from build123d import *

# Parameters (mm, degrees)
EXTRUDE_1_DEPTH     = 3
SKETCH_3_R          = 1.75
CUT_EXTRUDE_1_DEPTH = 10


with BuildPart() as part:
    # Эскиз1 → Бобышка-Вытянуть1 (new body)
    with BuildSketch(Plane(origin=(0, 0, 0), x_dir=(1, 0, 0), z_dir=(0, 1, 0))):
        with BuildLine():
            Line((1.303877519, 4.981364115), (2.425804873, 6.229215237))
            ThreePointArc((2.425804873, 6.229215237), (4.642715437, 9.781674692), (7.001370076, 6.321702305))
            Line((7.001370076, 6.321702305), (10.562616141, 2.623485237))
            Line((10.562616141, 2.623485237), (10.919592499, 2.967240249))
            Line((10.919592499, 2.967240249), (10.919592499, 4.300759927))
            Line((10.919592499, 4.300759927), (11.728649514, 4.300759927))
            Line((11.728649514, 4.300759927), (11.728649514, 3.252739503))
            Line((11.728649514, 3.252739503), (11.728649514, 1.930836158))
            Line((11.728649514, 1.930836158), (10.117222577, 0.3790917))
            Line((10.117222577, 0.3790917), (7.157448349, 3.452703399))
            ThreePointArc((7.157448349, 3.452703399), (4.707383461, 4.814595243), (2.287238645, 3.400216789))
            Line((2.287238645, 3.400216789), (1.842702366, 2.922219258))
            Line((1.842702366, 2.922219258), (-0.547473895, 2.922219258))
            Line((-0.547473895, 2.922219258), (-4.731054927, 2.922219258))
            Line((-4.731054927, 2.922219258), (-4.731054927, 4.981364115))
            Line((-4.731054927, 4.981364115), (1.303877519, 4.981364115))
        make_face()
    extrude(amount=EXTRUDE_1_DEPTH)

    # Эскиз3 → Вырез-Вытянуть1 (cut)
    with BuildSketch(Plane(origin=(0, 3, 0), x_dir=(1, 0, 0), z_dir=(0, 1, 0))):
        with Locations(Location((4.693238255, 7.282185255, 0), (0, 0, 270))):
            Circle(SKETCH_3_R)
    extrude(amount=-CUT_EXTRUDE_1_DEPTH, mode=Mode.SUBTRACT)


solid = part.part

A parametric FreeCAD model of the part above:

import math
import FreeCAD as App
import Part
import Sketcher
from FreeCAD import Vector
Q = App.Units.Quantity

doc = App.newDocument("Part")
body = doc.addObject("PartDesign::Body", "Body")

sketch1 = body.newObject("Sketcher::SketchObject", "Sketch")
sketch1.AttachmentSupport = (doc.getObject("XZ_Plane"), [""])
sketch1.MapMode = "FlatFace"
sketch1.addGeometry([
    Part.LineSegment(Vector(2.43, -6.23, 0), Vector(1.3, -4.98, 0)),
    Part.LineSegment(Vector(1.3, -4.98, 0), Vector(-4.73, -4.98, 0)),
    Part.LineSegment(Vector(-4.73, -4.98, 0), Vector(-4.73, -2.92, 0)),
    Part.LineSegment(Vector(-4.73, -2.92, 0), Vector(1.84, -2.92, 0)),
    Part.LineSegment(Vector(1.84, -2.92, 0), Vector(2.29, -3.4, 0)),
    Part.ArcOfCircle(Part.Circle(Vector(4.74, -1.98, 0), Vector(0, 0, 1), 2.83), math.radians(-150), math.radians(-31)),
    Part.LineSegment(Vector(7.16, -3.45, 0), Vector(10.12, -0.38, 0)),
    Part.LineSegment(Vector(10.12, -0.38, 0), Vector(11.73, -1.93, 0)),
    Part.LineSegment(Vector(11.73, -1.93, 0), Vector(11.73, -4.3, 0)),
    Part.LineSegment(Vector(11.73, -4.3, 0), Vector(10.92, -4.3, 0)),
    Part.LineSegment(Vector(10.92, -4.3, 0), Vector(10.92, -2.97, 0)),
    Part.LineSegment(Vector(10.92, -2.97, 0), Vector(10.56, -2.62, 0)),
    Part.LineSegment(Vector(10.56, -2.62, 0), Vector(7, -6.32, 0)),
    Part.ArcOfCircle(Part.Circle(Vector(4.69, -7.28, 0), Vector(0, 0, 1), 2.5), math.radians(155), math.radians(383)),
], False)
sketch1.addConstraint([
    Sketcher.Constraint("Coincident", 0, 2, 1, 1),
    Sketcher.Constraint("Coincident", 1, 2, 2, 1),
    Sketcher.Constraint("Coincident", 2, 2, 3, 1),
    Sketcher.Constraint("Coincident", 3, 2, 4, 1),
    Sketcher.Constraint("Coincident", 4, 2, 5, 1),
    Sketcher.Constraint("Coincident", 5, 2, 6, 1),
    Sketcher.Constraint("Coincident", 6, 2, 7, 1),
    Sketcher.Constraint("Coincident", 7, 2, 8, 1),
    Sketcher.Constraint("Coincident", 8, 2, 9, 1),
    Sketcher.Constraint("Coincident", 9, 2, 10, 1),
    Sketcher.Constraint("Coincident", 10, 2, 11, 1),
    Sketcher.Constraint("Coincident", 11, 2, 12, 1),
    Sketcher.Constraint("Coincident", 12, 2, 13, 2),
    Sketcher.Constraint("Coincident", 13, 1, 0, 1),
    Sketcher.Constraint("Horizontal", 1),
    Sketcher.Constraint("Vertical", 2),
    Sketcher.Constraint("Horizontal", 3),
    Sketcher.Constraint("Vertical", 8),
    Sketcher.Constraint("Horizontal", 9),
    Sketcher.Constraint("Vertical", 10),
    Sketcher.Constraint("Perpendicular", 6, 7),
    Sketcher.Constraint("Parallel", 7, 11),
    Sketcher.Constraint("Perpendicular", 11, 12),
    Sketcher.Constraint("Radius", 13, Q("2.5 mm")),
    Sketcher.Constraint("Radius", 5, Q("2.830096 mm")),
    Sketcher.Constraint("DistanceX", 4, 2, 13, 3, Q("2.406 mm")),
    Sketcher.Constraint("DistanceY", 12, 2, 5, 2, Q("2.868999 mm")),
    Sketcher.Constraint("DistanceY", 13, 1, 4, 2, Q("2.828998 mm")),
    Sketcher.Constraint("Distance", 7, Q("2.237098 mm")),
    Sketcher.Constraint("DistanceY", 10, 1, 10, 2, Q("1.33352 mm")),
    Sketcher.Constraint("DistanceY", 0, 2, 5, 3, Q("2.9967 mm")),
    Sketcher.Constraint("DistanceX", 5, 2, 7, 2, Q("4.571201 mm")),
    Sketcher.Constraint("Distance", 0, Q("1.67805 mm")),
    Sketcher.Constraint("Distance", 4, Q("0.652759 mm")),
    Sketcher.Constraint("Distance", 11, Q("0.49558 mm")),
    Sketcher.Constraint("Distance", 12, Q("5.134129 mm")),
    Sketcher.Constraint("DistanceX", 1, 2, 1, 1, Q("6.034932 mm")),
    Sketcher.Constraint("DistanceX", 3, 1, 3, 2, Q("6.573757 mm")),
    Sketcher.Constraint("DistanceX", 9, 2, 9, 1, Q("0.809057 mm")),
    Sketcher.Constraint("DistanceY", 2, 1, 2, 2, Q("2.059145 mm")),
    Sketcher.Constraint("DistanceY", 8, 2, 8, 1, Q("2.369924 mm")),
    Sketcher.Constraint("DistanceX", -1, 1, 5, 3, Q("4.737882 mm")),
    Sketcher.Constraint("DistanceX", -1, 1, 13, 3, Q("4.693238 mm")),
    Sketcher.Constraint("DistanceY", 2, 2, -1, 1, Q("2.922219 mm")),
])
pad1 = body.newObject("PartDesign::Pad", "Pad")
pad1.Profile = sketch1
pad1.Length = 3
pad1.Reversed = True

sketch2 = body.newObject("Sketcher::SketchObject", "Sketch001")
sketch2.AttachmentSupport = (doc.getObject("XZ_Plane"), [""])
sketch2.MapMode = "FlatFace"
sketch2.AttachmentOffset = App.Placement(Vector(0, 0, -3), App.Rotation())
sketch2.addGeometry(Part.Circle(Vector(4.7, -7.3, 0), Vector(0, 0, 1), 1.8), False)
sketch2.addConstraint([
    Sketcher.Constraint("Diameter", 0, Q("3.5 mm")),
    Sketcher.Constraint("DistanceX", -1, 1, 0, 3, Q("4.693238 mm")),
    Sketcher.Constraint("DistanceY", 0, 3, -1, 1, Q("7.282185 mm")),
])
pocket1 = body.newObject("PartDesign::Pocket", "Pocket")
pocket1.Profile = sketch2
pocket1.Length = 10
pocket1.Reversed = True

doc.recompute()
